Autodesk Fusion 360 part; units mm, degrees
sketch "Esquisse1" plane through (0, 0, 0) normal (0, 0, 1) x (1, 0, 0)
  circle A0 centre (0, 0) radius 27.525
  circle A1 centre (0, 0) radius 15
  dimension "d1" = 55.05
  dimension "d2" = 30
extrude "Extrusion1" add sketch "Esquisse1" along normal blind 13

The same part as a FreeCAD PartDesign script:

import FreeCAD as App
import Part
import Sketcher
Q = App.Units.Quantity

doc = App.newDocument("Part")
body = doc.addObject("PartDesign::Body", "Body")

# Sketch on XY plane
sketch1 = doc.addObject("Sketcher::SketchObject", "Sketch")
body.addObject(sketch1)
sketch1.AttachmentSupport = (doc.XY_Plane, [""])
sketch1.MapMode = "FlatFace"
sketch1.addGeometry([
    Part.Circle(App.Vector(0, 0, 0), App.Vector(0, 0, 1), 27.525),
    Part.Circle(App.Vector(0, 0, 0), App.Vector(0, 0, 1), 15),
], False)
sketch1.addConstraint([
    Sketcher.Constraint("Coincident", 0, 3, -1, 1),
    Sketcher.Constraint("Coincident", 1, 3, -1, 1),
    Sketcher.Constraint("Diameter", 1, Q("30 mm")),
    Sketcher.Constraint("Diameter", 0, Q("55.05 mm")),
])
pad1 = doc.addObject("PartDesign::Pad", "Pad")
body.addObject(pad1)
pad1.Profile = sketch1
pad1.Length = 13

doc.recompute()
